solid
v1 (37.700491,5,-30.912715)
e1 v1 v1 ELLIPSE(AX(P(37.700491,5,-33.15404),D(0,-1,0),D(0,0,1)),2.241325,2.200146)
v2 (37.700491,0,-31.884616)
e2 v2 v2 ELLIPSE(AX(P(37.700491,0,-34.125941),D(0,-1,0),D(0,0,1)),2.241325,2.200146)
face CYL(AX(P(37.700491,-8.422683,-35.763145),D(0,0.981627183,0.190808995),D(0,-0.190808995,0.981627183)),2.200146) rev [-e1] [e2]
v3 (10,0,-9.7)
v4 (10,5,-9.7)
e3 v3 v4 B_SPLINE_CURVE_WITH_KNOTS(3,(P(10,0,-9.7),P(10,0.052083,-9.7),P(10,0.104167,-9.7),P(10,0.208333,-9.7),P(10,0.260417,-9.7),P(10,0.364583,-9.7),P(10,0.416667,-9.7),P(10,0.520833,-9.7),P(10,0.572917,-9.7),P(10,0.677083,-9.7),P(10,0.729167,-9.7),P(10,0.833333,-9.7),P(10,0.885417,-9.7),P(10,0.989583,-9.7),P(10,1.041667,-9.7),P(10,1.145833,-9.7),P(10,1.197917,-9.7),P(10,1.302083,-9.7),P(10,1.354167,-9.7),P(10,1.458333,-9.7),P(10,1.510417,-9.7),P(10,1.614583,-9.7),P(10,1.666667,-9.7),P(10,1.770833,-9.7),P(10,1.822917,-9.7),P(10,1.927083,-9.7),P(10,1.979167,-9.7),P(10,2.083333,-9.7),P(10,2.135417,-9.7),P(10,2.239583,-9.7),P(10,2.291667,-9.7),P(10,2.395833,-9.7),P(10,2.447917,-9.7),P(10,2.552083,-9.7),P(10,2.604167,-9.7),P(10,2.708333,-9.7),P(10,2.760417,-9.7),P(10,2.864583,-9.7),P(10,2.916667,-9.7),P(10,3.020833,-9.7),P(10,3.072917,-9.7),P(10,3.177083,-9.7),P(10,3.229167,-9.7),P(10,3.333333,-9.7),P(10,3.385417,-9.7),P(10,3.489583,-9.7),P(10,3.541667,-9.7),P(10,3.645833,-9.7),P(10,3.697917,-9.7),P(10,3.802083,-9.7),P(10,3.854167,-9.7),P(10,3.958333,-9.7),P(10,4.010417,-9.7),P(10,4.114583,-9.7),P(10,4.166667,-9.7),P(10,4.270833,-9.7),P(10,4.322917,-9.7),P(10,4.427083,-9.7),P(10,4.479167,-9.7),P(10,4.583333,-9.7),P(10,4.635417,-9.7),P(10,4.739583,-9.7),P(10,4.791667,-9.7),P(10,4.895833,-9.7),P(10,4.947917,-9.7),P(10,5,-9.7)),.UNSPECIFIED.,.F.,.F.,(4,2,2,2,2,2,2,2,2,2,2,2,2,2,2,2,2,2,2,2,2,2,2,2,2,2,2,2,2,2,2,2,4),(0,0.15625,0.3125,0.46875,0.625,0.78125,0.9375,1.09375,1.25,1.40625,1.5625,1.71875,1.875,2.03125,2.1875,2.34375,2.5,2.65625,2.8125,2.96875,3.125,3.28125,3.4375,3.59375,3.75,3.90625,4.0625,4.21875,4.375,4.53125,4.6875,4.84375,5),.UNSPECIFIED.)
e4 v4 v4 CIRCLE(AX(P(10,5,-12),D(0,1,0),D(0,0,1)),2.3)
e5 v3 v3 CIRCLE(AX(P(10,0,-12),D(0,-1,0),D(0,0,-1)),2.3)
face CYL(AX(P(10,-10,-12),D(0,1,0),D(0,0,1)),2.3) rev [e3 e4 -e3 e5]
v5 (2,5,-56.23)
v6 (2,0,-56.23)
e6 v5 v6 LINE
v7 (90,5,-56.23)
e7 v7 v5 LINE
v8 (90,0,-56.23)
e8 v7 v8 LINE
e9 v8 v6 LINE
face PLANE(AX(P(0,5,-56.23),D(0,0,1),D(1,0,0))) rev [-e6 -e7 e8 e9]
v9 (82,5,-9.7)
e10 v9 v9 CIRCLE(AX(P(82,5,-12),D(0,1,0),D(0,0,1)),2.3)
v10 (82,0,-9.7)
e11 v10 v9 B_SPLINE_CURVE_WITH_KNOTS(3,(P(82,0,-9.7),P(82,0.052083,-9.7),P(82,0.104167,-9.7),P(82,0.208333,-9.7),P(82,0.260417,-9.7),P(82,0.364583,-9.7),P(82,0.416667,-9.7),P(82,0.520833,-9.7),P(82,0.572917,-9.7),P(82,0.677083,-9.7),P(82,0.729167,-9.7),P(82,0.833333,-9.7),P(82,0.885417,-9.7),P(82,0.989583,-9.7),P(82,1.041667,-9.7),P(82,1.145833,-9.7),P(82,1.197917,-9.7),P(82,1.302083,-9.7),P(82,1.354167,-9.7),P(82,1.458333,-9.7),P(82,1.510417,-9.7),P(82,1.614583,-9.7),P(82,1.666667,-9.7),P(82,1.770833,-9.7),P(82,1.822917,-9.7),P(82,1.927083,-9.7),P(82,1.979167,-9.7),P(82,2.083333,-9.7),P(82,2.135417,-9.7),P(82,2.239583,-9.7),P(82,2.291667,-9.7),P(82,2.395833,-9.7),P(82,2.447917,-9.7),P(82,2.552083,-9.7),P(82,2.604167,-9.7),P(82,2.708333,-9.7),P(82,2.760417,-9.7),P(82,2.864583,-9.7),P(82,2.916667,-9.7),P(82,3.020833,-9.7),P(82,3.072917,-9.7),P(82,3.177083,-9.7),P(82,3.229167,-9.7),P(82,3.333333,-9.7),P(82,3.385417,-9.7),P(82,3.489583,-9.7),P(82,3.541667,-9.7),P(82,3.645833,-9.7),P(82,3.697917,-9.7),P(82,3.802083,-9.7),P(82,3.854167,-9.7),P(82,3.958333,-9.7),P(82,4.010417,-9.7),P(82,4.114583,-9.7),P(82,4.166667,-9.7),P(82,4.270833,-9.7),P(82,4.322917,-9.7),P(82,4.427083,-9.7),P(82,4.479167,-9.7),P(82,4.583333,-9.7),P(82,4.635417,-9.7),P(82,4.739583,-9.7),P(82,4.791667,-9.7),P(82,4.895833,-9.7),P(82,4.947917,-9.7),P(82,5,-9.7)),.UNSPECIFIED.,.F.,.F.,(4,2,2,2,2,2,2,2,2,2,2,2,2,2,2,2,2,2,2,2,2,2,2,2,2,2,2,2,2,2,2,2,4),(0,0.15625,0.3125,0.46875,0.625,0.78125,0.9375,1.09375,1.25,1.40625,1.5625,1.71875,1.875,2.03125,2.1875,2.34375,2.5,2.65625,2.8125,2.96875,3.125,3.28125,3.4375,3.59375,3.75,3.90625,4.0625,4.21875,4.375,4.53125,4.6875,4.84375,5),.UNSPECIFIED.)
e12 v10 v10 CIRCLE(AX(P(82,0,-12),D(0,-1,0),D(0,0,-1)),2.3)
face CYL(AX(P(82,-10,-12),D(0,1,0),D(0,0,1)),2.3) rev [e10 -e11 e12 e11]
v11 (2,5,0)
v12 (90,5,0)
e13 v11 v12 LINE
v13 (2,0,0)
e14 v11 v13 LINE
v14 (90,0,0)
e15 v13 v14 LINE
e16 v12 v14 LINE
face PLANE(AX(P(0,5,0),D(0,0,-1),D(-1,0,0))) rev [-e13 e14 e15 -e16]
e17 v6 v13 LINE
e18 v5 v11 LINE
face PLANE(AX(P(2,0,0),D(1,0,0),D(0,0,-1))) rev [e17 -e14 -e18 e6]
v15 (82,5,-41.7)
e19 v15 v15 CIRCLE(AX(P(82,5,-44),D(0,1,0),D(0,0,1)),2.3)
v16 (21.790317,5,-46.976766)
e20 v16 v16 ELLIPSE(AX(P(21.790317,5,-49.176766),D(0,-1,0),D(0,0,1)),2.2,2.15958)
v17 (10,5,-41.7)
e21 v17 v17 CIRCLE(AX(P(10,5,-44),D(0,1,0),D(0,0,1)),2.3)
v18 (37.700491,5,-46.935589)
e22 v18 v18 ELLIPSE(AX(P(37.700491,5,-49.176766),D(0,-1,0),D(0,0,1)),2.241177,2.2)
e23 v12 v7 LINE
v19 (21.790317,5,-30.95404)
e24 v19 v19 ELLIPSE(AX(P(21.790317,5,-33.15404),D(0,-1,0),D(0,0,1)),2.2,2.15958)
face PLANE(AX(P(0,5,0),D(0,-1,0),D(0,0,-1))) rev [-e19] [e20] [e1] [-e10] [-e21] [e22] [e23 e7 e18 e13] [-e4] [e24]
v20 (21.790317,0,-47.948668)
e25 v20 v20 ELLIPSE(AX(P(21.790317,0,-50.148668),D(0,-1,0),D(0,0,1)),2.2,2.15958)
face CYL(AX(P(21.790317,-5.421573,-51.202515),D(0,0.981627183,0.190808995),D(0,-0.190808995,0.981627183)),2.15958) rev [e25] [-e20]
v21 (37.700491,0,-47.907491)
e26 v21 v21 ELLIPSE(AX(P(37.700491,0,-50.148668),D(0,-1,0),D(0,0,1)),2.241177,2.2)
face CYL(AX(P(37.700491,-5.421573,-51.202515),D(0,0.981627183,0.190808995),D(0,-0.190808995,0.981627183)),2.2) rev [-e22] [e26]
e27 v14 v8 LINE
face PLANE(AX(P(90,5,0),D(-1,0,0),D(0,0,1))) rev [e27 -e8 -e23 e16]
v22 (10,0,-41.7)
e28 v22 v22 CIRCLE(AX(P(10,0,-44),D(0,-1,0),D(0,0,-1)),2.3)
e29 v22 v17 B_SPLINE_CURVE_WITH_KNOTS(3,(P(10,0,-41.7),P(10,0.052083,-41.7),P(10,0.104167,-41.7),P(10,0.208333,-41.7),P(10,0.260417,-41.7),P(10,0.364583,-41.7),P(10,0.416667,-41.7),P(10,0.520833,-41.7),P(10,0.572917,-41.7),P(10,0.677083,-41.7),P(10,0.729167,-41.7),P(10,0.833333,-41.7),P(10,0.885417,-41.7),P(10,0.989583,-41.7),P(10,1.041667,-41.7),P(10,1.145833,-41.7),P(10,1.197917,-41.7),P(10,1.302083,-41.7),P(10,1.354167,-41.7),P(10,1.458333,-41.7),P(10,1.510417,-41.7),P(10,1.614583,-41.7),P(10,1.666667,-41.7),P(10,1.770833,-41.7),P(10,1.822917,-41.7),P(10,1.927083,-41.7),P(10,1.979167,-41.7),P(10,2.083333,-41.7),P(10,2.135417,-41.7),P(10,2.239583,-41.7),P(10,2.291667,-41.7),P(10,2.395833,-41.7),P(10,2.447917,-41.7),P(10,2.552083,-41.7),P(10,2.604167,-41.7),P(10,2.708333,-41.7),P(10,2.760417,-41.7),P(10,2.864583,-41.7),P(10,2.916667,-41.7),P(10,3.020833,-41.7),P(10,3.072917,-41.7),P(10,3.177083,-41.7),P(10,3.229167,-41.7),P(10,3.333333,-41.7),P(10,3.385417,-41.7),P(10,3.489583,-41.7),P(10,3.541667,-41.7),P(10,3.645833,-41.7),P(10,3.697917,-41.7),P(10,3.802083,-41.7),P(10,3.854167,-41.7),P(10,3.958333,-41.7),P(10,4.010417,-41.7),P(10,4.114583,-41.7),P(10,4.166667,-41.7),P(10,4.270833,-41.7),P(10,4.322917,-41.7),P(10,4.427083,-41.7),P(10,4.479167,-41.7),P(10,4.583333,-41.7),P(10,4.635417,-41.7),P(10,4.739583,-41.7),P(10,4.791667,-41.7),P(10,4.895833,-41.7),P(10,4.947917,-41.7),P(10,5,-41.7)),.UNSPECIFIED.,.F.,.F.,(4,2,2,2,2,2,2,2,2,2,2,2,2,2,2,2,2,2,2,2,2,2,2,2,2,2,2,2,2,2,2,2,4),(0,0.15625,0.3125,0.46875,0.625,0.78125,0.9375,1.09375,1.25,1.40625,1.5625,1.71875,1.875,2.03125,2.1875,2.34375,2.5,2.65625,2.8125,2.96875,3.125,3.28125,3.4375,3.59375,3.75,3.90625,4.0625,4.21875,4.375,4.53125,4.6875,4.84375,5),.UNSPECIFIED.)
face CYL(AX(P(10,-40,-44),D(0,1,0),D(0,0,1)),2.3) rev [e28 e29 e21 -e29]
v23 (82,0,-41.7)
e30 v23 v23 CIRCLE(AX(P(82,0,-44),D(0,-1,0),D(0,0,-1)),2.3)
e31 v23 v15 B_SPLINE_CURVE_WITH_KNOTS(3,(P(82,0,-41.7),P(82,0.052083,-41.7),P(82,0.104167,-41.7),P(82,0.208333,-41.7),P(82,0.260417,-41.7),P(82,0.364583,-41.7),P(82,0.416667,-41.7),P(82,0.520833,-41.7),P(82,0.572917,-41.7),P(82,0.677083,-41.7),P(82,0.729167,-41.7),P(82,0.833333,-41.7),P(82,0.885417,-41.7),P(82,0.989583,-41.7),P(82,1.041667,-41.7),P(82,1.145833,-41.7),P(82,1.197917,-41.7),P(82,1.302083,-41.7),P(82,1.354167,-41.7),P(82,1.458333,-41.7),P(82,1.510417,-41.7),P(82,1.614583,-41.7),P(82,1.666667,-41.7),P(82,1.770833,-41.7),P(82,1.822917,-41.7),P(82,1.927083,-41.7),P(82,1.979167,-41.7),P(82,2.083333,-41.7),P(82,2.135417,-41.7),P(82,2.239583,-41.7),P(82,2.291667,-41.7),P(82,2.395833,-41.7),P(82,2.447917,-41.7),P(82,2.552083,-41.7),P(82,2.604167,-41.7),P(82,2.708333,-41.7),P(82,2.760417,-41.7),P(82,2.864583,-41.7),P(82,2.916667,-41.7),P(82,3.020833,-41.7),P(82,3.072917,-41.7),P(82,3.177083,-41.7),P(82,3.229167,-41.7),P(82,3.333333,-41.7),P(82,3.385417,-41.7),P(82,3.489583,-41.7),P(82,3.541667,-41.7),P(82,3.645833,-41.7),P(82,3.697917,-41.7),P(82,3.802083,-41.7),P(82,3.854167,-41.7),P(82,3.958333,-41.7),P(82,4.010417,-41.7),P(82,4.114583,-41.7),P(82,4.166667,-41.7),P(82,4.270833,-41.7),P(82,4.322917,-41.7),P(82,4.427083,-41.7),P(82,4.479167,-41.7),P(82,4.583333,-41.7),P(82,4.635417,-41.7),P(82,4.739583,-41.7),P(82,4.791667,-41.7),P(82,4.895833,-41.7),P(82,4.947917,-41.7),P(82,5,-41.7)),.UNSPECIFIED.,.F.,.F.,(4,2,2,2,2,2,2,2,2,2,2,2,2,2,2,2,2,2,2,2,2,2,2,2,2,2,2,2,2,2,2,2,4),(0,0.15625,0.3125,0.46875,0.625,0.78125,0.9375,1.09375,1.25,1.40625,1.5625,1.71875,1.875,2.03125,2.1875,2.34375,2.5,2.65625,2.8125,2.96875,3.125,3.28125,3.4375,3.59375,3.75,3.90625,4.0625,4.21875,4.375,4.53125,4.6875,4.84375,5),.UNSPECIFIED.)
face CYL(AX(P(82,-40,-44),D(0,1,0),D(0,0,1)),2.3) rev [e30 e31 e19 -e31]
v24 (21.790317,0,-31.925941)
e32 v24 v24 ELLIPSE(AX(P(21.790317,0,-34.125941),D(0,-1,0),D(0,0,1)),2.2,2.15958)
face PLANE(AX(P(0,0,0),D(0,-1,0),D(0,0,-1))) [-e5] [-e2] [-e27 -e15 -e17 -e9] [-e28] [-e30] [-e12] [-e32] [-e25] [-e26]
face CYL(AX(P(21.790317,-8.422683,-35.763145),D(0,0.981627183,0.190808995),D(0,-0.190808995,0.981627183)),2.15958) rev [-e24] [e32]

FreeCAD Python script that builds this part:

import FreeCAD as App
import Part
import Sketcher


def add_polygon(sketch, points):
    """Adds a closed chain of lines whose ends are joined by coincident constraints."""
    first, n = sketch.GeometryCount, len(points)
    for a, b in zip(points, points[1:] + points[:1]):
        sketch.addGeometry(Part.LineSegment(App.Vector(*a, 0), App.Vector(*b, 0)), False)
    for i in range(n):
        sketch.addConstraint(Sketcher.Constraint("Coincident", first + i, 2, first + (i + 1) % n, 1))

doc = App.newDocument("Part")
body = doc.addObject("PartDesign::Body", "Body")

sketch1 = doc.addObject("Sketcher::SketchObject", "Sketch")
body.addObject(sketch1)
sketch1.AttachmentSupport = (doc.XZ_Plane, [""])
sketch1.MapMode = "FlatFace"
add_polygon(sketch1, [(0, -56), (0, 0), (90, 0), (90, -56)])
sketch1.addConstraint([
    Sketcher.Constraint("Vertical", 0),
    Sketcher.Constraint("Horizontal", 1),
    Sketcher.Constraint("Vertical", 2),
    Sketcher.Constraint("Horizontal", 3),
    Sketcher.Constraint("Coincident", 0, 2, -1, 1),
    Sketcher.Constraint("DistanceX", 1, 1, 1, 2, 90.0),
    Sketcher.Constraint("DistanceY", 0, 1, 0, 2, 56.23),
])
pad1 = doc.addObject("PartDesign::Pad", "Pad")
body.addObject(pad1)
pad1.Profile = sketch1
pad1.Length = 5
pad1.Reversed = True

sketch2 = doc.addObject("Sketcher::SketchObject", "Sketch001")
body.addObject(sketch2)
sketch2.AttachmentSupport = (doc.XZ_Plane, [""])
sketch2.MapMode = "FlatFace"
sketch2.AttachmentOffset = App.Placement(App.Vector(0, 0, -5), App.Rotation())
sketch2.addGeometry([
    Part.Circle(App.Vector(82, -12, 0), App.Vector(0, 0, 1), 2.3),
    Part.Circle(App.Vector(10, -12, 0), App.Vector(0, 0, 1), 2.3),
], False)
sketch2.addConstraint([
    Sketcher.Constraint("Equal", 0, 1),
    Sketcher.Constraint("Horizontal", 0, 3, 1, 3),
    Sketcher.Constraint("Diameter", 0, 4.6),
    Sketcher.Constraint("DistanceX", -1, 1, 0, 3, 82.0),
    Sketcher.Constraint("DistanceY", 0, 3, -1, 1, 12.0),
    Sketcher.Constraint("DistanceX", -1, 1, 1, 3, 10.0),
])
pocket1 = doc.addObject("PartDesign::Pocket", "Pocket")
body.addObject(pocket1)
pocket1.Profile = sketch2
pocket1.Length = 15
pocket1.Reversed = True

sketch3 = doc.addObject("Sketcher::SketchObject", "Sketch002")
body.addObject(sketch3)
sketch3.AttachmentSupport = (doc.XZ_Plane, [""])
sketch3.MapMode = "FlatFace"
sketch3.AttachmentOffset = App.Placement(App.Vector(0, 0, -5), App.Rotation())
sketch3.addGeometry([
    Part.Circle(App.Vector(82, -44, 0), App.Vector(0, 0, 1), 2.3),
    Part.Circle(App.Vector(10, -44, 0), App.Vector(0, 0, 1), 2.3),
], False)
sketch3.addConstraint([
    Sketcher.Constraint("Equal", 0, 1),
    Sketcher.Constraint("Horizontal", 0, 3, 1, 3),
    Sketcher.Constraint("Diameter", 0, 4.6),
    Sketcher.Constraint("DistanceX", -1, 1, 0, 3, 82.0),
    Sketcher.Constraint("DistanceY", 0, 3, -1, 1, 44.0),
    Sketcher.Constraint("DistanceX", -1, 1, 1, 3, 10.0),
])
pocket2 = doc.addObject("PartDesign::Pocket", "Pocket001")
body.addObject(pocket2)
pocket2.Profile = sketch3
pocket2.Length = 45
pocket2.Reversed = True

sketch4 = doc.addObject("Sketcher::SketchObject", "Sketch003")
body.addObject(sketch4)
sketch4.AttachmentSupport = (doc.YZ_Plane, [""])
sketch4.MapMode = "FlatFace"
add_polygon(sketch4, [(5, -56), (0, -56), (0, 5), (5, 5)])
sketch4.addConstraint([
    Sketcher.Constraint("Horizontal", 0),
    Sketcher.Constraint("Vertical", 1),
    Sketcher.Constraint("Horizontal", 2),
    Sketcher.Constraint("Vertical", 3),
    Sketcher.Constraint("PointOnObject", 0, 2, -2),
    Sketcher.Constraint("DistanceY", 0, 2, -1, 1, 56.23),
    Sketcher.Constraint("DistanceX", 0, 2, 0, 1, 5.043905),
    Sketcher.Constraint("DistanceY", 1, 1, 1, 2, 61.183864),
])
pocket3 = doc.addObject("PartDesign::Pocket", "Pocket002")
body.addObject(pocket3)
pocket3.Profile = sketch4
pocket3.Length = 2
pocket3.Reversed = True

sketch5 = doc.addObject("Sketcher::SketchObject", "Sketch004")
body.addObject(sketch5)
sketch5.Placement = App.Placement(App.Vector(0, 4.81796, 0.936516), App.Rotation(App.Vector(1, 0, 0), App.Vector(0, 0.190808995, -0.981627183), App.Vector(0, 0.981627183, 0.190808995), "ZXY"))
sketch5.addGeometry([
    Part.Circle(App.Vector(21.8, 49.2, 0), App.Vector(0, 0, 1), 2.2),
    Part.Circle(App.Vector(37.7, 49.2, 0), App.Vector(0, 0, 1), 2.2),
    Part.Circle(App.Vector(37.7, 33.5, 0), App.Vector(0, 0, 1), 2.2),
    Part.Circle(App.Vector(21.8, 33.5, 0), App.Vector(0, 0, 1), 2.2),
], False)
sketch5.addConstraint([
    Sketcher.Constraint("Equal", 0, 3),
    Sketcher.Constraint("Horizontal", 0, 3, 1, 3),
    Sketcher.Constraint("Horizontal", 2, 3, 3, 3),
    Sketcher.Constraint("Vertical", 1, 3, 2, 3),
    Sketcher.Constraint("Vertical", 0, 3, 3, 3),
    Sketcher.Constraint("Diameter", 1, 4.4),
    Sketcher.Constraint("Diameter", 0, 4.31916),
    Sketcher.Constraint("Diameter", 2, 4.400291),
    Sketcher.Constraint("DistanceX", -1, 1, 1, 3, 37.700491),
    Sketcher.Constraint("DistanceY", -1, 1, 2, 3, 33.498952),
    Sketcher.Constraint("DistanceX", -1, 1, 0, 3, 21.790317),
    Sketcher.Constraint("DistanceY", -1, 1, 0, 3, 49.227295),
])
pocket4 = doc.addObject("PartDesign::Pocket", "Pocket003")
body.addObject(pocket4)
pocket4.Profile = sketch5
pocket4.Length = 20

doc.recompute()
